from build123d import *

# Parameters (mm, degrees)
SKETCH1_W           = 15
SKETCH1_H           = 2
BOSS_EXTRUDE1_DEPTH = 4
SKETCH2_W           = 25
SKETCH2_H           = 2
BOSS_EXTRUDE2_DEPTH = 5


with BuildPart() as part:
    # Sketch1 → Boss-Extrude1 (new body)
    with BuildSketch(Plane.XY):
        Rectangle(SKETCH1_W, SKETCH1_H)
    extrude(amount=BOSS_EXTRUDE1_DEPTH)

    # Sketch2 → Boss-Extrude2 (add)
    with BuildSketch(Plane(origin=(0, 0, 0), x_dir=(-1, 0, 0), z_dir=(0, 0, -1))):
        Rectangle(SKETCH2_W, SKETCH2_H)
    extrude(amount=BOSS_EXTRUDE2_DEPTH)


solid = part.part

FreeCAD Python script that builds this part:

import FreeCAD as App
import Part
import Sketcher
Q = App.Units.Quantity

doc = App.newDocument("Part")
body = doc.addObject("PartDesign::Body", "Body")

# Sketch on XY plane
sketch1 = doc.addObject("Sketcher::SketchObject", "Sketch")
body.addObject(sketch1)
sketch1.AttachmentSupport = (doc.XY_Plane, [""])
sketch1.MapMode = "FlatFace"
sketch1.addGeometry([
    Part.LineSegment(App.Vector(-7.5, 1, 0), App.Vector(-7.5, -1, 0)),
    Part.LineSegment(App.Vector(-7.5, -1, 0), App.Vector(7.5, -1, 0)),
    Part.LineSegment(App.Vector(7.5, -1, 0), App.Vector(7.5, 1, 0)),
    Part.LineSegment(App.Vector(7.5, 1, 0), App.Vector(-7.5, 1, 0)),
], False)
sketch1.addConstraint([
    Sketcher.Constraint("Coincident", 0, 2, 1, 1),
    Sketcher.Constraint("Coincident", 1, 2, 2, 1),
    Sketcher.Constraint("Coincident", 2, 2, 3, 1),
    Sketcher.Constraint("Coincident", 3, 2, 0, 1),
    Sketcher.Constraint("Vertical", 0),
    Sketcher.Constraint("Horizontal", 1),
    Sketcher.Constraint("Vertical", 2),
    Sketcher.Constraint("Horizontal", 3),
    Sketcher.Constraint("Symmetric", 0, 2, 2, 2, -1, 1),
    Sketcher.Constraint("DistanceX", 1, 1, 1, 2, Q("15 mm")),
    Sketcher.Constraint("DistanceY", 0, 2, 0, 1, Q("2 mm")),
])
pad1 = doc.addObject("PartDesign::Pad", "Pad")
body.addObject(pad1)
pad1.Profile = sketch1
pad1.Length = 4

# Sketch on XY plane
sketch2 = doc.addObject("Sketcher::SketchObject", "Sketch001")
body.addObject(sketch2)
sketch2.AttachmentSupport = (doc.XY_Plane, [""])
sketch2.MapMode = "FlatFace"
sketch2.addGeometry([
    Part.LineSegment(App.Vector(12.5, 1, 0), App.Vector(12.5, -1, 0)),
    Part.LineSegment(App.Vector(12.5, -1, 0), App.Vector(-12.5, -1, 0)),
    Part.LineSegment(App.Vector(-12.5, -1, 0), App.Vector(-12.5, 1, 0)),
    Part.LineSegment(App.Vector(-12.5, 1, 0), App.Vector(12.5, 1, 0)),
], False)
sketch2.addConstraint([
    Sketcher.Constraint("Coincident", 0, 2, 1, 1),
    Sketcher.Constraint("Coincident", 1, 2, 2, 1),
    Sketcher.Constraint("Coincident", 2, 2, 3, 1),
    Sketcher.Constraint("Coincident", 3, 2, 0, 1),
    Sketcher.Constraint("Vertical", 0),
    Sketcher.Constraint("Horizontal", 1),
    Sketcher.Constraint("Vertical", 2),
    Sketcher.Constraint("Horizontal", 3),
    Sketcher.Constraint("Symmetric", 0, 2, 2, 2, -1, 1),
    Sketcher.Constraint("DistanceX", 1, 2, 1, 1, Q("25 mm")),
    Sketcher.Constraint("DistanceY", 0, 2, 0, 1, Q("2 mm")),
])
pad2 = doc.addObject("PartDesign::Pad", "Pad001")
body.addObject(pad2)
pad2.Profile = sketch2
pad2.Length = 5
pad2.Reversed = True

doc.recompute()
